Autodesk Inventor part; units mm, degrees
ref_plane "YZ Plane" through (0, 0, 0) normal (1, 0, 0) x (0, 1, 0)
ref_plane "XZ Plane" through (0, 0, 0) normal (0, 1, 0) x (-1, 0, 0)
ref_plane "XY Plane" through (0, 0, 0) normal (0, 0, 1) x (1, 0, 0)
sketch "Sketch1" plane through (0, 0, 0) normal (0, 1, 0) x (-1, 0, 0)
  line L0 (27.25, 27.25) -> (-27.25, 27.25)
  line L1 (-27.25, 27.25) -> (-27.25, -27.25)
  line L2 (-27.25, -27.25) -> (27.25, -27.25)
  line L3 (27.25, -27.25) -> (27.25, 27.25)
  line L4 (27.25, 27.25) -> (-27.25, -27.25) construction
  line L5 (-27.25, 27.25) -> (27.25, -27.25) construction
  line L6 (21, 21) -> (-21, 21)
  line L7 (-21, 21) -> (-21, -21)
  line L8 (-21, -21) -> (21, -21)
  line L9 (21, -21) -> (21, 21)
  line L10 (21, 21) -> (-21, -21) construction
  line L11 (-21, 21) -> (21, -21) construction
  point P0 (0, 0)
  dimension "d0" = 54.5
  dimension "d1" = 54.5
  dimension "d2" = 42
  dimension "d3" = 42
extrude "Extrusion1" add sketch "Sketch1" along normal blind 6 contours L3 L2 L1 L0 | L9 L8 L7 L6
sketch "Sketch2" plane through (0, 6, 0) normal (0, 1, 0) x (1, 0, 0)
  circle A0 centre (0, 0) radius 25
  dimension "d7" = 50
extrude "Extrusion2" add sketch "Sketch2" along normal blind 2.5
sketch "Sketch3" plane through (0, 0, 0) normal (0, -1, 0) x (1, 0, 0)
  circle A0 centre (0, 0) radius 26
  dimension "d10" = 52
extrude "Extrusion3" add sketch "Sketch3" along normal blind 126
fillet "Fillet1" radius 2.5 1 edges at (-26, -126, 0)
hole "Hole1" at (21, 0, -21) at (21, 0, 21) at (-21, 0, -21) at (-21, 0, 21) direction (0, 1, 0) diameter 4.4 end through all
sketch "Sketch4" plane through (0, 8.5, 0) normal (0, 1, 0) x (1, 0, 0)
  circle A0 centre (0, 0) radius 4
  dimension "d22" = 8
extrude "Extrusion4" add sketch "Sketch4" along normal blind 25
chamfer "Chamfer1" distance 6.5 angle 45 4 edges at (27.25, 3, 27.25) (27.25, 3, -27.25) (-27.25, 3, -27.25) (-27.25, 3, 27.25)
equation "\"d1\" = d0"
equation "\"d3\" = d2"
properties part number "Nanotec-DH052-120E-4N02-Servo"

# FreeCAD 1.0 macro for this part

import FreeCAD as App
import Part
import Sketcher


def edges_at(feature, points):
    """Names of the edges that pass closest to the given points."""
    edges = feature.Shape.Edges
    near = lambda p: min(range(len(edges)), key=lambda i: edges[i].distToShape(Part.Vertex(*p))[0])
    return sorted({f"Edge{near(p) + 1}" for p in points})

doc = App.newDocument("Part")
body = doc.addObject("PartDesign::Body", "Body")

# Sketch on XZ plane
sketch1 = body.newObject("Sketcher::SketchObject", "Sketch")
sketch1.AttachmentSupport = (doc.getObject("XZ_Plane"), [""])
sketch1.MapMode = "FlatFace"
sketch1.addGeometry([
    Part.LineSegment(App.Vector(-27.25, -27.25, 0), App.Vector(-27.25, 27.25, 0)),
    Part.LineSegment(App.Vector(-27.25, 27.25, 0), App.Vector(27.25, 27.25, 0)),
    Part.LineSegment(App.Vector(27.25, 27.25, 0), App.Vector(27.25, -27.25, 0)),
    Part.LineSegment(App.Vector(27.25, -27.25, 0), App.Vector(-27.25, -27.25, 0)),
], False)
sketch1.addConstraint([
    Sketcher.Constraint("Coincident", 0, 2, 1, 1),
    Sketcher.Constraint("Coincident", 1, 2, 2, 1),
    Sketcher.Constraint("Coincident", 2, 2, 3, 1),
    Sketcher.Constraint("Coincident", 3, 2, 0, 1),
    Sketcher.Constraint("Vertical", 0),
    Sketcher.Constraint("Horizontal", 1),
    Sketcher.Constraint("Vertical", 2),
    Sketcher.Constraint("Horizontal", 3),
    Sketcher.Constraint("Symmetric", 0, 2, 2, 2, -1, 1),
    Sketcher.Constraint("Equal", 3, 0),
    Sketcher.Constraint("DistanceX", 1, 1, 1, 2, 54.5),
])
pad1 = body.newObject("PartDesign::Pad", "Pad")
pad1.Profile = sketch1
pad1.Length = 6
pad1.Reversed = True

# Sketch on XZ plane
sketch2 = body.newObject("Sketcher::SketchObject", "Sketch001")
sketch2.AttachmentSupport = (doc.getObject("XZ_Plane"), [""])
sketch2.MapMode = "FlatFace"
sketch2.AttachmentOffset = App.Placement(App.Vector(0, 0, -6), App.Rotation())
sketch2.addGeometry(Part.Circle(App.Vector(0, 0, 0), App.Vector(0, 0, 1), 25), False)
sketch2.addConstraint([
    Sketcher.Constraint("Coincident", 0, 3, -1, 1),
    Sketcher.Constraint("Diameter", 0, 50.0),
])
pad2 = body.newObject("PartDesign::Pad", "Pad001")
pad2.Profile = sketch2
pad2.Length = 2.5
pad2.Reversed = True

# Sketch on XZ plane
sketch3 = body.newObject("Sketcher::SketchObject", "Sketch002")
sketch3.AttachmentSupport = (doc.getObject("XZ_Plane"), [""])
sketch3.MapMode = "FlatFace"
sketch3.addGeometry(Part.Circle(App.Vector(0, 0, 0), App.Vector(0, 0, 1), 26), False)
sketch3.addConstraint([
    Sketcher.Constraint("Coincident", 0, 3, -1, 1),
    Sketcher.Constraint("Diameter", 0, 52.0),
])
pad3 = body.newObject("PartDesign::Pad", "Pad002")
pad3.Profile = sketch3
pad3.Length = 126
doc.recompute()

fillet = body.newObject("PartDesign::Fillet", "Fillet")
fillet.Base = (pad3, edges_at(pad3, [(-26, -126, 0)]))
fillet.Radius = 2.5

# Sketch on XZ plane
sketch4 = body.newObject("Sketcher::SketchObject", "Sketch003")
sketch4.AttachmentSupport = (doc.getObject("XZ_Plane"), [""])
sketch4.MapMode = "FlatFace"
sketch4.addGeometry([
    Part.Circle(App.Vector(21, -21, 0), App.Vector(0, 0, 1), 2.2),
    Part.Circle(App.Vector(21, 21, 0), App.Vector(0, 0, 1), 2.2),
    Part.Circle(App.Vector(-21, -21, 0), App.Vector(0, 0, 1), 2.2),
    Part.Circle(App.Vector(-21, 21, 0), App.Vector(0, 0, 1), 2.2),
], False)
sketch4.addConstraint([
    Sketcher.Constraint("Equal", 0, 1),
    Sketcher.Constraint("Equal", 1, 2),
    Sketcher.Constraint("Equal", 2, 3),
    Sketcher.Constraint("Symmetric", 1, 3, 2, 3, -1, 1),
    Sketcher.Constraint("Symmetric", 0, 3, 3, 3, -1, 1),
    Sketcher.Constraint("Symmetric", 0, 3, 2, 3, -2),
    Sketcher.Constraint("Diameter", 0, 4.4),
    Sketcher.Constraint("DistanceX", -1, 1, 0, 3, 21.0),
    Sketcher.Constraint("DistanceY", 0, 3, -1, 1, 21.0),
])
doc.recompute()
hole = body.newObject("PartDesign::Hole", "Hole")
hole.Profile = sketch4
hole.ThreadType = "None"
hole.Diameter = 4.4
hole.DepthType = "ThroughAll"

# Sketch on XZ plane
sketch5 = body.newObject("Sketcher::SketchObject", "Sketch004")
sketch5.AttachmentSupport = (doc.getObject("XZ_Plane"), [""])
sketch5.MapMode = "FlatFace"
sketch5.AttachmentOffset = App.Placement(App.Vector(0, 0, -8.5), App.Rotation())
sketch5.addGeometry(Part.Circle(App.Vector(0, 0, 0), App.Vector(0, 0, 1), 4), False)
sketch5.addConstraint([
    Sketcher.Constraint("Coincident", 0, 3, -1, 1),
    Sketcher.Constraint("Diameter", 0, 8.0),
])
pad4 = body.newObject("PartDesign::Pad", "Pad003")
pad4.Profile = sketch5
pad4.Length = 25
pad4.Reversed = True
doc.recompute()

chamfer = body.newObject("PartDesign::Chamfer", "Chamfer")
chamfer.Base = (pad4, edges_at(pad4, [
    (27.25, 3, 27.25),
    (27.25, 3, -27.25),
    (-27.25, 3, -27.25),
    (-27.25, 3, 27.25),
]))
chamfer.Size = 6.5

doc.recompute()
